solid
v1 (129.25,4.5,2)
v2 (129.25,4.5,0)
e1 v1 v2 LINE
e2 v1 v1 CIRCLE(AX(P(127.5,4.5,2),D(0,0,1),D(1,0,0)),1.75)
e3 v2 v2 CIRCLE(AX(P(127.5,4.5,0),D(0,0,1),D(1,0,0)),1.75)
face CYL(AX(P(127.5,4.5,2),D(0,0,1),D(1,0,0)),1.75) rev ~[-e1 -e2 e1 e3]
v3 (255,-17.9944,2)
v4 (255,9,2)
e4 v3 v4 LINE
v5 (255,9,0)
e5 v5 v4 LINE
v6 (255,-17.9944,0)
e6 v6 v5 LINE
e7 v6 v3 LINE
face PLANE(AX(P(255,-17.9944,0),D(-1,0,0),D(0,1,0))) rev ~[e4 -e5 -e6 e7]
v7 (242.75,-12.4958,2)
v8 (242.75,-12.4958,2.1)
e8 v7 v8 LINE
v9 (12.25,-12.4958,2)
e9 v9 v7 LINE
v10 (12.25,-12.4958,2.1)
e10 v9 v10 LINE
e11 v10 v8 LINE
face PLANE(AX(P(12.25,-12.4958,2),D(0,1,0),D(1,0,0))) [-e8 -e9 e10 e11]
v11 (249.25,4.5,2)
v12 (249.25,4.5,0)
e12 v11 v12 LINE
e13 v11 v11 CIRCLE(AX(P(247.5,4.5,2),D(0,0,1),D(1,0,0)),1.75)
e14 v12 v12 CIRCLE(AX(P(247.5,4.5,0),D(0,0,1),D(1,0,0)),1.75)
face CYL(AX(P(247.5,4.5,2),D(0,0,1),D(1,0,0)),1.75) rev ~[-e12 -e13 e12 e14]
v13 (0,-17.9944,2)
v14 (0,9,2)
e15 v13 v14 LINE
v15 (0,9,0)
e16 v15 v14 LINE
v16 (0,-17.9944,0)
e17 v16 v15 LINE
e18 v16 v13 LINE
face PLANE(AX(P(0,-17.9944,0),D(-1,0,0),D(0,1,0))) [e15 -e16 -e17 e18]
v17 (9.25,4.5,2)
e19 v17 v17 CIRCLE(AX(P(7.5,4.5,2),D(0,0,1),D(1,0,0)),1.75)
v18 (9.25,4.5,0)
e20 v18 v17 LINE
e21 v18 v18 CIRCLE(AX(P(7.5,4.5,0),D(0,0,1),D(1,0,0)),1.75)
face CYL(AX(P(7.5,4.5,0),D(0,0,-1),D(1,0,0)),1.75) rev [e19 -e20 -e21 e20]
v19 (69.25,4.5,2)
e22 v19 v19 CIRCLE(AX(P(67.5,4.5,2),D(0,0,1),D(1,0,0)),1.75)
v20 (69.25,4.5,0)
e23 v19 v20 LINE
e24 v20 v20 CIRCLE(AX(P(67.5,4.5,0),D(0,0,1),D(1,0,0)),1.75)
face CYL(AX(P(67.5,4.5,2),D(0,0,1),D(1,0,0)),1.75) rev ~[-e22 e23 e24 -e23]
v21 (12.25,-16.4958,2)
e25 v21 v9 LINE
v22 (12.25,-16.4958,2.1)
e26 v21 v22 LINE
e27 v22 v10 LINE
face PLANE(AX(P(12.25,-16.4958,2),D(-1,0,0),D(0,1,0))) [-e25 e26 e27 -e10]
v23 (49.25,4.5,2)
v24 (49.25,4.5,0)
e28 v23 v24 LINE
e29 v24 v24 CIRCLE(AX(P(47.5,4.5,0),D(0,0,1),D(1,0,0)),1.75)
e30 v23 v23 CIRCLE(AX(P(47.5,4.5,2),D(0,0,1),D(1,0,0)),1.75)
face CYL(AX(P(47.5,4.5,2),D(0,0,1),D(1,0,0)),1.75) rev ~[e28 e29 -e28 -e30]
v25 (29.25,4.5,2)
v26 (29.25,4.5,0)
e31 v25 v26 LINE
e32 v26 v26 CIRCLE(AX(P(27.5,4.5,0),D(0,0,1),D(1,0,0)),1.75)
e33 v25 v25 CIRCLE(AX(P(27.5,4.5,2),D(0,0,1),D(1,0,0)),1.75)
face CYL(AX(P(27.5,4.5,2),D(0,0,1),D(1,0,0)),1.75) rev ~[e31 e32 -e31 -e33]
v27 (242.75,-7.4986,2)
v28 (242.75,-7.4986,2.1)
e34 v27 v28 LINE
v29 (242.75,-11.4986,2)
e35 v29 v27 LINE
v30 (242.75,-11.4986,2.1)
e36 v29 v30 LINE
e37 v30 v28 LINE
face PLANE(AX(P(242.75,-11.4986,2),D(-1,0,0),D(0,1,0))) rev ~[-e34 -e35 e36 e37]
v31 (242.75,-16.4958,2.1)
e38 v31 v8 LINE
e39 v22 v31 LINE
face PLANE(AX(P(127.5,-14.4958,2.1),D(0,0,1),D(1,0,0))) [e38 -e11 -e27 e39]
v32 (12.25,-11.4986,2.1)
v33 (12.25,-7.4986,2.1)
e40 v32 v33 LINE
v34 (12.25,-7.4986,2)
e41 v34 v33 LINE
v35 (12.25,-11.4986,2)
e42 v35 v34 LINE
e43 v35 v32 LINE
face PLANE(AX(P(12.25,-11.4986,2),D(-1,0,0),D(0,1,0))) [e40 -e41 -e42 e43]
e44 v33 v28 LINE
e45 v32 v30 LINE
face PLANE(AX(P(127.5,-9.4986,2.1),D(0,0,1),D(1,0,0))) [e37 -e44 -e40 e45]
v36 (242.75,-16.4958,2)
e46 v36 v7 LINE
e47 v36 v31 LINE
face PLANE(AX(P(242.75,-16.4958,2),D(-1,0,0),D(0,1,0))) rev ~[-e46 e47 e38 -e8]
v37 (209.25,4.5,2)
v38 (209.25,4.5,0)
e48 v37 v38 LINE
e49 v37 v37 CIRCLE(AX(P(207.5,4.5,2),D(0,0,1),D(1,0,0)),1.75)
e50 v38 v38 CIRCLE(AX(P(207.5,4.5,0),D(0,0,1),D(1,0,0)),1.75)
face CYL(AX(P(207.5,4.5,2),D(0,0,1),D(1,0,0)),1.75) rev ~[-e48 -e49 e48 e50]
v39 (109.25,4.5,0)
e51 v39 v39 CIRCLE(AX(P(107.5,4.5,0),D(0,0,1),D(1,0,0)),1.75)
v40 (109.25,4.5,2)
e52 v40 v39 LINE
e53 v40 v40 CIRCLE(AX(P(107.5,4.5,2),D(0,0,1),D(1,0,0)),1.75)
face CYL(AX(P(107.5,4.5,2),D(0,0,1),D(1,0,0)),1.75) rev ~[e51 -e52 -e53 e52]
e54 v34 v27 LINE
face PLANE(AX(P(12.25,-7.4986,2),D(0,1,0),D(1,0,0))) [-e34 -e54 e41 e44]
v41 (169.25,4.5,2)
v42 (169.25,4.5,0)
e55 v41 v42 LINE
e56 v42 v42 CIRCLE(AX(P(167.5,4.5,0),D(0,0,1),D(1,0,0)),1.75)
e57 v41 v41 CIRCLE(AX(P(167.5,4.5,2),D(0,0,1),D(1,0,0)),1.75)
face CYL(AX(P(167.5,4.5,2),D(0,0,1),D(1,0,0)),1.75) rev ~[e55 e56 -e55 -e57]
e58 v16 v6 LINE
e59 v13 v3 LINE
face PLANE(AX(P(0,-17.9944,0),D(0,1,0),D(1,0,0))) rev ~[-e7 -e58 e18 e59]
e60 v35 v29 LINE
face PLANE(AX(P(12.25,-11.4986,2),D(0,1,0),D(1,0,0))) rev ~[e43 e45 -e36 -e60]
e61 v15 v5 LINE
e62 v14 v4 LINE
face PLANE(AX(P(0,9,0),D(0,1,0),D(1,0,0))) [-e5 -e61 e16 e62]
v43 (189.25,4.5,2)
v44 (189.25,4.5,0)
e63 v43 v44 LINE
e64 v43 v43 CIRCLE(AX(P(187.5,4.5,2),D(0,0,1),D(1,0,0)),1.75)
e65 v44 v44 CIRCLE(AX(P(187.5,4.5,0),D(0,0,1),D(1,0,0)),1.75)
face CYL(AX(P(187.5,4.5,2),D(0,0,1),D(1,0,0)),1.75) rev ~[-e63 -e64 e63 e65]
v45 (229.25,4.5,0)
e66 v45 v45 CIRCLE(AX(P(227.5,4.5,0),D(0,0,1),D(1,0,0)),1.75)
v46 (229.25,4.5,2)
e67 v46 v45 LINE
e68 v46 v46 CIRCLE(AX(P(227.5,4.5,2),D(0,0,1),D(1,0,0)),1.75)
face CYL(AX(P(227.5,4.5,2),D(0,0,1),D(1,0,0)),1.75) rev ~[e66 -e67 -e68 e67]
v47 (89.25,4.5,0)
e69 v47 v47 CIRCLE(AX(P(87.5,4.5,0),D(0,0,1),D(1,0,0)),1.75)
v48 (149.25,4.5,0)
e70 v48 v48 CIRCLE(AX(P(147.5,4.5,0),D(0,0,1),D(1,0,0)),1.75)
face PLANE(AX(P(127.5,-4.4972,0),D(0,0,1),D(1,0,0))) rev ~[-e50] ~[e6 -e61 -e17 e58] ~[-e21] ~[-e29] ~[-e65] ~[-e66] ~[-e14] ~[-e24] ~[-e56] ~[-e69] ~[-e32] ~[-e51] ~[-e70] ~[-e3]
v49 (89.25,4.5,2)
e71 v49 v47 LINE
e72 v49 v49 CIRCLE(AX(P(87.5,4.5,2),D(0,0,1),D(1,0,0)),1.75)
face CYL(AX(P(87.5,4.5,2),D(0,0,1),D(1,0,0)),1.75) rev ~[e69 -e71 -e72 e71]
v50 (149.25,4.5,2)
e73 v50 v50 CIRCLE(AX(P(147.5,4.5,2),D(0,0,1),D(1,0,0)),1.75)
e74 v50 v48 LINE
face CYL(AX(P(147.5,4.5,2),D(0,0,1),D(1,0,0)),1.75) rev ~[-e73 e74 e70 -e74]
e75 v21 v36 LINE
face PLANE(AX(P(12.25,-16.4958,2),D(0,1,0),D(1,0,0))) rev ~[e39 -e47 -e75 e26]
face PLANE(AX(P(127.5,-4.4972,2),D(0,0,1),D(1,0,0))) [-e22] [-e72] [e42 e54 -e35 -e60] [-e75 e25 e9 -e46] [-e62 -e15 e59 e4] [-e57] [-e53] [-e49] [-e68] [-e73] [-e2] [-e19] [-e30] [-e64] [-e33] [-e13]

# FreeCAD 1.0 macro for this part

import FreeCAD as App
import Part
import Sketcher

V = App.Vector


def add_polygon(sketch, points):
    """Adds a closed chain of lines whose ends are joined by coincident constraints."""
    first, n = sketch.GeometryCount, len(points)
    for a, b in zip(points, points[1:] + points[:1]):
        sketch.addGeometry(Part.LineSegment(App.Vector(*a, 0), App.Vector(*b, 0)), False)
    for i in range(n):
        sketch.addConstraint(Sketcher.Constraint("Coincident", first + i, 2, first + (i + 1) % n, 1))

doc = App.newDocument("Part")
params = doc.addObject("Spreadsheet::Sheet", "Params")
for row, (alias, value) in enumerate([
    ("sketch1_diameter", "3.5 mm"),
    ("sketch1_width", "255 mm"),
    ("pad1_length", "2 mm"),
    ("sketch2_diameter", "3.5 mm"),
    ("linearpattern_pitch", "20 mm"),
    ("sketch3_height", "4 mm"),
    ("sketch3_width", "230.5 mm"),
    ("pad2_length", "0.1 mm"),
], start=1):
    params.set(f"A{row}", alias)
    params.set(f"B{row}", "=" + value)
    params.setAlias(f"B{row}", alias)

body = doc.addObject("PartDesign::Body", "Body")

# Sketch on XY plane
sketch1 = body.newObject("Sketcher::SketchObject", "Sketch")
sketch1.AttachmentSupport = (doc.getObject("XY_Plane"), [""])
sketch1.MapMode = "FlatFace"
add_polygon(sketch1, [(0, 9), (0, -17.9944), (255, -17.9944), (255, 9)])  # lines 0-3
sketch1.addGeometry(Part.Circle(V(7.5, 4.5, 0), V(0, 0, 1), 1.75), False)  # 4
sketch1.addConstraint(Sketcher.Constraint("Vertical", 0))
sketch1.addConstraint(Sketcher.Constraint("Horizontal", 1))
sketch1.addConstraint(Sketcher.Constraint("Vertical", 2))
sketch1.addConstraint(Sketcher.Constraint("Horizontal", 3))
sketch1.addConstraint(Sketcher.Constraint("PointOnObject", 0, 2, -2))
sketch1.addConstraint(Sketcher.Constraint("Diameter", 4, 3.5))
sketch1.addConstraint(Sketcher.Constraint("DistanceX", 1, 1, 1, 2, 255.0))
sketch1.addConstraint(Sketcher.Constraint("DistanceY", -1, 1, 2, 2, 9.0))
sketch1.addConstraint(Sketcher.Constraint("DistanceX", -1, 1, 4, 3, 7.5))
sketch1.addConstraint(Sketcher.Constraint("DistanceY", -1, 1, 4, 3, 4.5))
sketch1.addConstraint(Sketcher.Constraint("DistanceY", 0, 2, 0, 1, 26.9944))
sketch1.setExpression("Constraints[9]", "Params.sketch1_diameter")
sketch1.setExpression("Constraints[10]", "Params.sketch1_width")
pad1 = body.newObject("PartDesign::Pad", "Pad")
pad1.Profile = sketch1
pad1.setExpression("Length", "Params.pad1_length")

# Sketch on XY plane
sketch2 = body.newObject("Sketcher::SketchObject", "Sketch001")
sketch2.AttachmentSupport = (doc.getObject("XY_Plane"), [""])
sketch2.MapMode = "FlatFace"
sketch2.AttachmentOffset = App.Placement(V(0, 0, 2), App.Rotation())
sketch2.addGeometry(Part.Circle(V(7.5, 4.5, 0), V(0, 0, 1), 1.75), False)
sketch2.addConstraint(Sketcher.Constraint("Diameter", 0, 3.5))
sketch2.addConstraint(Sketcher.Constraint("DistanceX", -1, 1, 0, 3, 7.5))
sketch2.addConstraint(Sketcher.Constraint("DistanceY", -1, 1, 0, 3, 4.5))
sketch2.setExpression("Constraints[0]", "Params.sketch2_diameter")
pocket1 = body.newObject("PartDesign::Pocket", "Pocket")
pocket1.Profile = sketch2
pocket1.Type = "ThroughAll"
doc.recompute()

linearpattern = body.newObject("PartDesign::LinearPattern", "LinearPattern")
linearpattern.Originals = [pocket1]
linearpattern.Direction = (doc.getObject("X_Axis"), [""])
linearpattern.Mode = "offset"
linearpattern.setExpression("Offset", "Params.linearpattern_pitch")
linearpattern.Occurrences = 13
body.Tip = linearpattern

# Sketch on XY plane
sketch3 = body.newObject("Sketcher::SketchObject", "Sketch002")
sketch3.AttachmentSupport = (doc.getObject("XY_Plane"), [""])
sketch3.MapMode = "FlatFace"
sketch3.AttachmentOffset = App.Placement(V(0, 0, 2), App.Rotation())
add_polygon(sketch3, [(12.25, -7.4986), (12.25, -11.4986), (242.75, -11.4986), (242.75, -7.4986)])  # lines 0-3
add_polygon(sketch3, [(12.25, -12.4958), (12.25, -16.4958), (242.75, -16.4958), (242.75, -12.4958)])  # lines 4-7
sketch3.addConstraint(Sketcher.Constraint("Vertical", 0))
sketch3.addConstraint(Sketcher.Constraint("Horizontal", 1))
sketch3.addConstraint(Sketcher.Constraint("Vertical", 2))
sketch3.addConstraint(Sketcher.Constraint("Horizontal", 3))
sketch3.addConstraint(Sketcher.Constraint("Vertical", 4))
sketch3.addConstraint(Sketcher.Constraint("Horizontal", 5))
sketch3.addConstraint(Sketcher.Constraint("Vertical", 6))
sketch3.addConstraint(Sketcher.Constraint("Horizontal", 7))
sketch3.addConstraint(Sketcher.Constraint("Vertical", 3, 2, 4, 2))
sketch3.addConstraint(Sketcher.Constraint("Vertical", 2, 2, 5, 2))
sketch3.addConstraint(Sketcher.Constraint("Equal", 2, 4))
sketch3.addConstraint(Sketcher.Constraint("DistanceY", 0, 2, 0, 1, 4.0))
sketch3.addConstraint(Sketcher.Constraint("DistanceX", 1, 1, 1, 2, 230.5))
sketch3.addConstraint(Sketcher.Constraint("DistanceX", -1, 1, 0, 2, 12.25))
sketch3.addConstraint(Sketcher.Constraint("DistanceY", 0, 2, -1, 1, 11.4986))
sketch3.addConstraint(Sketcher.Constraint("DistanceY", 4, 2, -1, 1, 16.4958))
sketch3.setExpression("Constraints[19]", "Params.sketch3_height")
sketch3.setExpression("Constraints[20]", "Params.sketch3_width")
pad2 = body.newObject("PartDesign::Pad", "Pad001")
pad2.Profile = sketch3
pad2.setExpression("Length", "Params.pad2_length")

doc.recompute()
